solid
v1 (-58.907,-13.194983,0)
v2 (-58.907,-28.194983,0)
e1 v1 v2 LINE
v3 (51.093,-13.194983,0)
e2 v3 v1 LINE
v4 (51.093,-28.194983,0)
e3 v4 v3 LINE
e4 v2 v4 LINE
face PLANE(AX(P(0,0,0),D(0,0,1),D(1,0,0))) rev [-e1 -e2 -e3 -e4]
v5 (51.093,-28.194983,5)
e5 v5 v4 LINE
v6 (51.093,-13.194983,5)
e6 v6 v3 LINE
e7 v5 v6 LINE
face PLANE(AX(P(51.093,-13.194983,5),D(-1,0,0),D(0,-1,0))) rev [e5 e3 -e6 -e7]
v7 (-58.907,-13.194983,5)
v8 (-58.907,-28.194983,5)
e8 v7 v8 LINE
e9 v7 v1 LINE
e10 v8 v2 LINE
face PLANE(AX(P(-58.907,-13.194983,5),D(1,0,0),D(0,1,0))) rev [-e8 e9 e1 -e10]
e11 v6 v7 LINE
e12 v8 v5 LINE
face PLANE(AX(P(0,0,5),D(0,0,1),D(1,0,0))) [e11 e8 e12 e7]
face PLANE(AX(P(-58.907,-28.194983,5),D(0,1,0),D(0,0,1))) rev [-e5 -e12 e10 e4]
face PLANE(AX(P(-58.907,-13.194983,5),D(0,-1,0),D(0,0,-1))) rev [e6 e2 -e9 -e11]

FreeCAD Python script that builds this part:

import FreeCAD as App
import Part
import Sketcher


def add_polygon(sketch, points):
    """Adds a closed chain of lines whose ends are joined by coincident constraints."""
    first, n = sketch.GeometryCount, len(points)
    for a, b in zip(points, points[1:] + points[:1]):
        sketch.addGeometry(Part.LineSegment(App.Vector(*a, 0), App.Vector(*b, 0)), False)
    for i in range(n):
        sketch.addConstraint(Sketcher.Constraint("Coincident", first + i, 2, first + (i + 1) % n, 1))

doc = App.newDocument("Part")
body = doc.addObject("PartDesign::Body", "Body")

# Sketch on XY plane
sketch1 = body.newObject("Sketcher::SketchObject", "Sketch")
sketch1.AttachmentSupport = (doc.getObject("XY_Plane"), [""])
sketch1.MapMode = "FlatFace"
add_polygon(sketch1, [(-59, -13), (-59, -28), (51, -28), (51, -13)])  # lines 0-3
sketch1.addConstraint(Sketcher.Constraint("Vertical", 0))
sketch1.addConstraint(Sketcher.Constraint("Horizontal", 1))
sketch1.addConstraint(Sketcher.Constraint("Vertical", 2))
sketch1.addConstraint(Sketcher.Constraint("Horizontal", 3))
sketch1.addConstraint(Sketcher.Constraint("DistanceX", 1, 1, 1, 2, 110.0))
sketch1.addConstraint(Sketcher.Constraint("DistanceY", 0, 2, 0, 1, 15.0))
sketch1.addConstraint(Sketcher.Constraint("DistanceX", 0, 2, -1, 1, 58.907))
sketch1.addConstraint(Sketcher.Constraint("DistanceY", 0, 2, -1, 1, 28.194983))
pad1 = body.newObject("PartDesign::Pad", "Pad")
pad1.Profile = sketch1
pad1.Length = 5

doc.recompute()
